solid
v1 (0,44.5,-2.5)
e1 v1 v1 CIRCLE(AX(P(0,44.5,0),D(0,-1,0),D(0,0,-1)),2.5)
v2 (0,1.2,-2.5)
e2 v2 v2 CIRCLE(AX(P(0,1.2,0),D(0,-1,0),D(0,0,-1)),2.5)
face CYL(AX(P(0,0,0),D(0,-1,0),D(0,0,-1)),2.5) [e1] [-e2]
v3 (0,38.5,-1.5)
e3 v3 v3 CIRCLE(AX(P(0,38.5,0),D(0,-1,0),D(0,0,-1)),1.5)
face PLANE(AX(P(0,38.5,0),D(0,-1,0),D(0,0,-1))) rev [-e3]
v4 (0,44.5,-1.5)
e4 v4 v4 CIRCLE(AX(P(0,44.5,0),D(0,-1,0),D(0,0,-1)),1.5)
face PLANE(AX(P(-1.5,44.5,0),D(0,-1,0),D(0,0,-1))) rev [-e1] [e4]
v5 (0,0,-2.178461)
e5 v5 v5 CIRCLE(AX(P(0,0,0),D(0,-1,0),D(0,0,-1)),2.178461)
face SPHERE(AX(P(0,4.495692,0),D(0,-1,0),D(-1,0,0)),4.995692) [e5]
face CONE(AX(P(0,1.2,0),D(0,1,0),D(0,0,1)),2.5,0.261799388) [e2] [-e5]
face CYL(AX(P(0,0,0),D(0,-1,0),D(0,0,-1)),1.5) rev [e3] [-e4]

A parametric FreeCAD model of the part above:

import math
import FreeCAD as App
import Part
import Sketcher
from FreeCAD import Vector
Q = App.Units.Quantity

doc = App.newDocument("Part")
body = doc.addObject("PartDesign::Body", "Body")

# Sketch on XY plane
sketch1 = body.newObject("Sketcher::SketchObject", "Sketch")
sketch1.AttachmentSupport = (doc.getObject("XY_Plane"), [""])
sketch1.MapMode = "FlatFace"
sketch1.addGeometry(Part.LineSegment(Vector(0, 38.5, 0), Vector(-1.5, 38.5, 0)), False)
sketch1.addGeometry(Part.LineSegment(Vector(-1.5, 38.5, 0), Vector(-1.5, 44.5, 0)), False)
sketch1.addGeometry(Part.LineSegment(Vector(-1.5, 44.5, 0), Vector(-2.5, 44.5, 0)), False)
sketch1.addGeometry(Part.LineSegment(Vector(-2.5, 44.5, 0), Vector(-2.5, 1.2, 0)), False)
sketch1.addGeometry(Part.LineSegment(Vector(-2.5, 1.2, 0), Vector(-2.178461, 0, 0)), False)
sketch1.addGeometry(Part.ArcOfCircle(Part.Circle(Vector(0, 4.495692, 0), Vector(0, 0, 1), 4.995692), math.radians(-115.853265), math.radians(-90)), False)
sketch1.addGeometry(Part.LineSegment(Vector(0, -0.5, 0), Vector(0, 38.5, 0)), False)
sketch1.addConstraint(Sketcher.Constraint("Coincident", 0, 2, 1, 1))
sketch1.addConstraint(Sketcher.Constraint("Coincident", 1, 2, 2, 1))
sketch1.addConstraint(Sketcher.Constraint("Coincident", 2, 2, 3, 1))
sketch1.addConstraint(Sketcher.Constraint("Coincident", 3, 2, 4, 1))
sketch1.addConstraint(Sketcher.Constraint("Coincident", 4, 2, 5, 1))
sketch1.addConstraint(Sketcher.Constraint("Coincident", 5, 2, 6, 1))
sketch1.addConstraint(Sketcher.Constraint("Coincident", 6, 2, 0, 1))
sketch1.addConstraint(Sketcher.Constraint("Horizontal", 0))
sketch1.addConstraint(Sketcher.Constraint("Vertical", 1))
sketch1.addConstraint(Sketcher.Constraint("Horizontal", 2))
sketch1.addConstraint(Sketcher.Constraint("Vertical", 3))
sketch1.addConstraint(Sketcher.Constraint("Vertical", 6))
sketch1.addConstraint(Sketcher.Constraint("PointOnObject", 5, 3, -2))
sketch1.addConstraint(Sketcher.Constraint("PointOnObject", 4, 2, -1))
sketch1.addConstraint(Sketcher.Constraint("PointOnObject", 5, 2, -2))
sketch1.addConstraint(Sketcher.Constraint("DistanceX", 2, 2, 2, 1, 1.0))
sketch1.addConstraint(Sketcher.Constraint("DistanceY", 1, 1, 1, 2, 6.0))
sketch1.addConstraint(Sketcher.Constraint("DistanceY", 6, 1, 6, 2, 39.0))
sketch1.addConstraint(Sketcher.Constraint("Angle", 4, Q("-75 deg")))
sketch1.addConstraint(Sketcher.Constraint("DistanceX", 0, 2, 0, 1, 1.5))
sketch1.addConstraint(Sketcher.Constraint("DistanceY", 3, 2, 3, 1, 43.3))
sketch1.addConstraint(Sketcher.Constraint("DistanceY", -1, 1, 0, 2, 38.5))
revolution = body.newObject("PartDesign::Revolution", "Revolution")
revolution.Profile = sketch1
revolution.ReferenceAxis = (sketch1, ["V_Axis"])
revolution.Angle = 360

doc.recompute()
